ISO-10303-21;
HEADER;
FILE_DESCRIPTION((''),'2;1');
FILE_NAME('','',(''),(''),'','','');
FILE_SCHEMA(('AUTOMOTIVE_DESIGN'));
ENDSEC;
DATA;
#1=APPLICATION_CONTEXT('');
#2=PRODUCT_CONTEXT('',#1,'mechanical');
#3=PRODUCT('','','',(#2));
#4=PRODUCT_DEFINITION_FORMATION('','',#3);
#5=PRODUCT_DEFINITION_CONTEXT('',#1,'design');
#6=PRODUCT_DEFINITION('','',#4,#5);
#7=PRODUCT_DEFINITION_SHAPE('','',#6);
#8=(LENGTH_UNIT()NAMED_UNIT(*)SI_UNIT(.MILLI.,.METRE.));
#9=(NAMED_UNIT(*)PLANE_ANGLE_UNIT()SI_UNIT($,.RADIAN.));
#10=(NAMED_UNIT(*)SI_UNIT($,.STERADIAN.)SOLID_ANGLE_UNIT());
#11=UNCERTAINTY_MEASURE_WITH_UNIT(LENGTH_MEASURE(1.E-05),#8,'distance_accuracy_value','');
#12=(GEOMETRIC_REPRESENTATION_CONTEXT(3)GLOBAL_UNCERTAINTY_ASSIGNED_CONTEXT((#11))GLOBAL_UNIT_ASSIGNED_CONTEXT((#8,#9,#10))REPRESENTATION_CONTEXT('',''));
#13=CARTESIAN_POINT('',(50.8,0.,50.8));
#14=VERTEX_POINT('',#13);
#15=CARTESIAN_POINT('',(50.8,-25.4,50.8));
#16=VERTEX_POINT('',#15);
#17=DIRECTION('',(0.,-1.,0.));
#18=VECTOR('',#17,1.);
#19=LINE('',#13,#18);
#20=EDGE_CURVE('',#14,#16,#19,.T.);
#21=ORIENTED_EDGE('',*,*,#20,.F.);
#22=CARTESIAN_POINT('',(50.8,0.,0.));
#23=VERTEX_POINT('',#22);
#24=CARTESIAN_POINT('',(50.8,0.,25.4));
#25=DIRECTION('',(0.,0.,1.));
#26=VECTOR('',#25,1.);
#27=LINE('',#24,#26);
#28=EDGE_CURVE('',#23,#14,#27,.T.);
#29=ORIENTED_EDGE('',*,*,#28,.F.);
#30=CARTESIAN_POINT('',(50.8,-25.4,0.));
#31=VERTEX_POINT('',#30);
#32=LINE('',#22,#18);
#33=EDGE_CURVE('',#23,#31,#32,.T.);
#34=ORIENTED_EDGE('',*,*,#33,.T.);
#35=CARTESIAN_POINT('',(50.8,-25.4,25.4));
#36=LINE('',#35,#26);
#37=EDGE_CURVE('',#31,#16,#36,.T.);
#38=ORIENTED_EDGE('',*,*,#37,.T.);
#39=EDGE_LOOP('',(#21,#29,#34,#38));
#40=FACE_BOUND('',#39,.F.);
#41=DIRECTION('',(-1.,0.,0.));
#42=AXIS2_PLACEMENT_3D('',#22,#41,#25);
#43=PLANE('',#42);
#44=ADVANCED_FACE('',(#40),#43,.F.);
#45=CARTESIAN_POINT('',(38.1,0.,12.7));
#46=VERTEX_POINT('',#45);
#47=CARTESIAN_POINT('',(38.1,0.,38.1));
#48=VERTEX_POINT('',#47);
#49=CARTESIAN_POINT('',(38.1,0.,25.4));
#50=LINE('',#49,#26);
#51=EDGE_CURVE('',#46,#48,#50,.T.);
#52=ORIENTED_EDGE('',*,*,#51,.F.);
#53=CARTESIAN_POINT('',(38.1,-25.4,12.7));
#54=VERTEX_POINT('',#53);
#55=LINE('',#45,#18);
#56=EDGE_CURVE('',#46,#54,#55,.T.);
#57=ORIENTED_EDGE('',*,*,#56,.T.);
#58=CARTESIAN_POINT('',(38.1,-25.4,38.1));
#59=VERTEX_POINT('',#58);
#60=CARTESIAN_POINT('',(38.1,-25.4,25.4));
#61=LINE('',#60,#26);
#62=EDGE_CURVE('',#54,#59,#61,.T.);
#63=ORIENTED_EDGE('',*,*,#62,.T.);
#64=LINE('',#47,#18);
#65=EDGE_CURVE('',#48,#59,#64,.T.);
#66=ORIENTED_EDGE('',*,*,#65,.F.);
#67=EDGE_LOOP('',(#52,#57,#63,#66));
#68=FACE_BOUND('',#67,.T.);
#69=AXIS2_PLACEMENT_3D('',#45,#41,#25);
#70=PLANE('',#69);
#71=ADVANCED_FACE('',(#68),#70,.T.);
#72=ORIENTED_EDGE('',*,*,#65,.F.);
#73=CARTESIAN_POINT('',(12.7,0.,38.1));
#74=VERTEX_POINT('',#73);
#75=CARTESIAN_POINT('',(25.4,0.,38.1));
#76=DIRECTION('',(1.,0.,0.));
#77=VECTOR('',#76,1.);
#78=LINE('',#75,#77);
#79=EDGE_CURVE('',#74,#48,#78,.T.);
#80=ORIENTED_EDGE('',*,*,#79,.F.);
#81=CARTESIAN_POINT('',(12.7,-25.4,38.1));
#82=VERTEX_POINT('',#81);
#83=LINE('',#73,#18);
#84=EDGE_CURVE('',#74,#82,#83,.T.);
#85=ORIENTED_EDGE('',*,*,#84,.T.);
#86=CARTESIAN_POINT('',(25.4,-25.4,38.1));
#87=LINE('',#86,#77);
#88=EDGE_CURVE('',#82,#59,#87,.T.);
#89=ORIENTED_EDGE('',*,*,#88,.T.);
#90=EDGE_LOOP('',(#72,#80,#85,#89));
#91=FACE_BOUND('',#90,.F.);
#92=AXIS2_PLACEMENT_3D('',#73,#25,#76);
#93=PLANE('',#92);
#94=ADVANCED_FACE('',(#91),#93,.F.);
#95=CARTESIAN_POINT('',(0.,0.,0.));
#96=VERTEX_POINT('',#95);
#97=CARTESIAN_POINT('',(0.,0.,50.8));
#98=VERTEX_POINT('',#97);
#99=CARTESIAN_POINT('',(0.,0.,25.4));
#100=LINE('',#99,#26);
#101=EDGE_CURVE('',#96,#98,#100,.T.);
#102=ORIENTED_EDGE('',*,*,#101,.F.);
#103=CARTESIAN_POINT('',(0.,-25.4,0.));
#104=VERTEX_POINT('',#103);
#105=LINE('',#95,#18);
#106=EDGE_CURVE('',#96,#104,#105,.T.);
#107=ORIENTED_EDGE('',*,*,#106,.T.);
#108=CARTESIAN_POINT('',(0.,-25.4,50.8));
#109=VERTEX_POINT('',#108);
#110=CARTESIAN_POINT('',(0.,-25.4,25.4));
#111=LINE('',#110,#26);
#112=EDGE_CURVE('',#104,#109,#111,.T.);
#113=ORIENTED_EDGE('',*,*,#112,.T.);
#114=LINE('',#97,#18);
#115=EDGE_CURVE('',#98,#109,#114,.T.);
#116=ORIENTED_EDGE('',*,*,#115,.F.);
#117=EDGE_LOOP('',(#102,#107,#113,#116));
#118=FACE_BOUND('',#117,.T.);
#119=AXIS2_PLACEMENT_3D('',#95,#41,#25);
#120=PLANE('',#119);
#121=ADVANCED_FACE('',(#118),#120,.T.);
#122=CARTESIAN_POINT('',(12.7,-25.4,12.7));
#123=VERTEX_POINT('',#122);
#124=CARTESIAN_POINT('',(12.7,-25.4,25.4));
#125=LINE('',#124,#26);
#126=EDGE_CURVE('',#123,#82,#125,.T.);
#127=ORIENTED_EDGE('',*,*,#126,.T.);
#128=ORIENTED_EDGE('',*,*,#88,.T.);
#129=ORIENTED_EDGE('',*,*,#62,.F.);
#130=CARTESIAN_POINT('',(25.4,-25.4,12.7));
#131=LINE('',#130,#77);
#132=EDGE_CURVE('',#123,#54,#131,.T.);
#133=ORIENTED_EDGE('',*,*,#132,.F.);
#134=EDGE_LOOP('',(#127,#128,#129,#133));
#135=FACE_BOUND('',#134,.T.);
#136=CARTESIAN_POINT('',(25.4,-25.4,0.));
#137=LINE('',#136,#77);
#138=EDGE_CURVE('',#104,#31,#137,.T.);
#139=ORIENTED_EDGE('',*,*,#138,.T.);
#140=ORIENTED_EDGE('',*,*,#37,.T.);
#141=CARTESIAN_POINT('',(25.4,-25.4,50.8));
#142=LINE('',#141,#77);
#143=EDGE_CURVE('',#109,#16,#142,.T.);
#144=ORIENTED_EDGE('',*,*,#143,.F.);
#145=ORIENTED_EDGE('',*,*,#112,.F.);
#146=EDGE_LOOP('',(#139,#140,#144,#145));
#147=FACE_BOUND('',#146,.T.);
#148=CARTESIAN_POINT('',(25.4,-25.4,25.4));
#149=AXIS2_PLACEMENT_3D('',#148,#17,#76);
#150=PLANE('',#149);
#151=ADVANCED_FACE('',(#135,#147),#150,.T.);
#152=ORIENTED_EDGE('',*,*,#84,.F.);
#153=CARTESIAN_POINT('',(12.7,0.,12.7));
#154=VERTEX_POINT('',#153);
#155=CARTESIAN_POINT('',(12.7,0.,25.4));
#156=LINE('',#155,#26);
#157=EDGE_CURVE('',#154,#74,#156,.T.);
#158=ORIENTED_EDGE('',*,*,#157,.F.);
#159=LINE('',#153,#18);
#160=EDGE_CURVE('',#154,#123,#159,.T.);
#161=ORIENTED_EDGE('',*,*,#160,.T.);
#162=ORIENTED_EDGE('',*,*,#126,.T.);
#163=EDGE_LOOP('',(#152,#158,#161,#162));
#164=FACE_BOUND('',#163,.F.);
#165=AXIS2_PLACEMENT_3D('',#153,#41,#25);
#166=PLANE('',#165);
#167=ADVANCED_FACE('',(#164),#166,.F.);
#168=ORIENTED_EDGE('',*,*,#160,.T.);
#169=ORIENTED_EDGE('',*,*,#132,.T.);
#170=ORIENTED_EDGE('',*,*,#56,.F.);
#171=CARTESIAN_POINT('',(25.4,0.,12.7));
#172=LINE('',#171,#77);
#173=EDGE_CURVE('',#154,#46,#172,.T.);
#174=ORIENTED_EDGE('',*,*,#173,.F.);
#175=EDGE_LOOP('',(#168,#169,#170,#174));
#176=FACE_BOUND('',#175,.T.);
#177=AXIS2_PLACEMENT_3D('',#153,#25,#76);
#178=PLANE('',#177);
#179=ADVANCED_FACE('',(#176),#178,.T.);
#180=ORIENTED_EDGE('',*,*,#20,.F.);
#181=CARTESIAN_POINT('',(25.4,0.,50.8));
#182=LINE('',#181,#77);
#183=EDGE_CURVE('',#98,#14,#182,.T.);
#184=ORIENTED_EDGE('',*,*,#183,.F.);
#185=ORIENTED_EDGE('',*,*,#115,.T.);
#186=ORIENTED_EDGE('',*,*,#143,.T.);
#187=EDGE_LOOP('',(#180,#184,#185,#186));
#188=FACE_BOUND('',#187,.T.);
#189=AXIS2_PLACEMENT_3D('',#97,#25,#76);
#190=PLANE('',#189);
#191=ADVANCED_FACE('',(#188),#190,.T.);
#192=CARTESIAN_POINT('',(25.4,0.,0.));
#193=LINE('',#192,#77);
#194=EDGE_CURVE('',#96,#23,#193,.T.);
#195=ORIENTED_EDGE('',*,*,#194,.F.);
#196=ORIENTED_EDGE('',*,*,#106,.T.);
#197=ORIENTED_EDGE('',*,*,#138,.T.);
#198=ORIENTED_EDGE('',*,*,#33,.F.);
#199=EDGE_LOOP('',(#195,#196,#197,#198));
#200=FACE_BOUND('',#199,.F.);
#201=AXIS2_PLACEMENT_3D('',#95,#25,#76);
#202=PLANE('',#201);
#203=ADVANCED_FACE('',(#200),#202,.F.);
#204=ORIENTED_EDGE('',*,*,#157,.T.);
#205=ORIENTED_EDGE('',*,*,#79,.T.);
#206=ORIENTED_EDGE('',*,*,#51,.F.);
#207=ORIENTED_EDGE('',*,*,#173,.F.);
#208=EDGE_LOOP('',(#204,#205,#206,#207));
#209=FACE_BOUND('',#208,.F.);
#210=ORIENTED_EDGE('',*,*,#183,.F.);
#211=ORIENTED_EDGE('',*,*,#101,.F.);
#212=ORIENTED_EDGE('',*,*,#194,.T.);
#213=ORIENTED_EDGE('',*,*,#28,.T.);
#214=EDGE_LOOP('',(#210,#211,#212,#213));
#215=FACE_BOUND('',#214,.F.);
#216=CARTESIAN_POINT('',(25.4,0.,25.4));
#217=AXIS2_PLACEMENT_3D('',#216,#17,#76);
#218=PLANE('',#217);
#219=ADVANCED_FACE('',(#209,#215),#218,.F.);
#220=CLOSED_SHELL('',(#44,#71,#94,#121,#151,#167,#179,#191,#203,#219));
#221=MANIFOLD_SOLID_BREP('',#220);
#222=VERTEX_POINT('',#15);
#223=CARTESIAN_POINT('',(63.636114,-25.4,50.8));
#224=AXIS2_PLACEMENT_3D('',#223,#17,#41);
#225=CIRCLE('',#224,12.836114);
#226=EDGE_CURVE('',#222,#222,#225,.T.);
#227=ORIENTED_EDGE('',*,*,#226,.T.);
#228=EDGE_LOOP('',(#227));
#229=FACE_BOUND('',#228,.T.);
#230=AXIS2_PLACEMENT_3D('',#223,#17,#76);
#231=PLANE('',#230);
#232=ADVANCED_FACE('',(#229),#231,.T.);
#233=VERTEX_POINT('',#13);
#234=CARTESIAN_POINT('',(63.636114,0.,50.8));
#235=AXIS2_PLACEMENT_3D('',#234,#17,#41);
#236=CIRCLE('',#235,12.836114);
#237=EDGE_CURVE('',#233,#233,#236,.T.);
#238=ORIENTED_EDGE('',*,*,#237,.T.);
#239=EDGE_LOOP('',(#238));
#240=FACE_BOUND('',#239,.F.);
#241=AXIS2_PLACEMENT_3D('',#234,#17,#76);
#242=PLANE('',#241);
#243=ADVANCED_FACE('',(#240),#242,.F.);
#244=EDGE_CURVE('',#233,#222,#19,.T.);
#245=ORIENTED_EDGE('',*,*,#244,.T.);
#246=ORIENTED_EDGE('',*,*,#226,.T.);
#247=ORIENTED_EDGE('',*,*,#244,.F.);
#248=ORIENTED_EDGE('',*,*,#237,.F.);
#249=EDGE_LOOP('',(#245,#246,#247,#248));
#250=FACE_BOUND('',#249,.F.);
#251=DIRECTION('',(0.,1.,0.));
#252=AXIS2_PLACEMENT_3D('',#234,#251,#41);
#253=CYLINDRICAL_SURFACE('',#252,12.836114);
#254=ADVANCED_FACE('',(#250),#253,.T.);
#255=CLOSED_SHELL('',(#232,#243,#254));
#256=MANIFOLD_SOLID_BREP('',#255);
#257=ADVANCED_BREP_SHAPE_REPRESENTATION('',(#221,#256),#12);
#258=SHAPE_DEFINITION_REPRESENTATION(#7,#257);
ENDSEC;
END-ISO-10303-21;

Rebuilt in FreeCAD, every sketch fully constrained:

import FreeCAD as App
import Part
import Sketcher

V = App.Vector
Q = App.Units.Quantity


def add_polygon(sketch, points):
    """Adds a closed chain of lines whose ends are joined by coincident constraints."""
    first, n = sketch.GeometryCount, len(points)
    for a, b in zip(points, points[1:] + points[:1]):
        sketch.addGeometry(Part.LineSegment(App.Vector(*a, 0), App.Vector(*b, 0)), False)
    for i in range(n):
        sketch.addConstraint(Sketcher.Constraint("Coincident", first + i, 2, first + (i + 1) % n, 1))

doc = App.newDocument("Part")
body = doc.addObject("PartDesign::Body", "Body")
body.AllowCompound = True

sketch1 = doc.addObject("Sketcher::SketchObject", "Sketch")
body.addObject(sketch1)
sketch1.AttachmentSupport = (doc.XZ_Plane, [""])
sketch1.MapMode = "FlatFace"
sketch1.addGeometry(Part.Circle(V(63.636114, 50.8, 0), V(0, 0, 1), 12.836114), False)
add_polygon(sketch1, [(0, 50.8), (0, 0), (50.8, 0), (50.8, 50.8)])
add_polygon(sketch1, [(38.1, 12.7), (12.7, 12.7), (12.7, 38.1), (38.1, 38.1)])
sketch1.addConstraint([
    Sketcher.Constraint("Vertical", 1),
    Sketcher.Constraint("Horizontal", 2),
    Sketcher.Constraint("Vertical", 3),
    Sketcher.Constraint("Horizontal", 4),
    Sketcher.Constraint("Horizontal", 5),
    Sketcher.Constraint("Vertical", 6),
    Sketcher.Constraint("Horizontal", 7),
    Sketcher.Constraint("Vertical", 8),
    Sketcher.Constraint("Coincident", 1, 2, -1, 1),
    Sketcher.Constraint("Horizontal", 0, 3, 3, 2),
    Sketcher.Constraint("Equal", 4, 1),
    Sketcher.Constraint("Equal", 7, 6),
    Sketcher.Constraint("DistanceX", 2, 1, 2, 2, Q("2 in")),
    Sketcher.Constraint("DistanceX", 5, 2, 5, 1, Q("1 in")),
    Sketcher.Constraint("DistanceX", -1, 1, 5, 2, Q("0.5 in")),
    Sketcher.Constraint("DistanceY", -1, 1, 5, 2, Q("0.5 in")),
    Sketcher.Constraint("Diameter", 0, 25.672228),
    Sketcher.Constraint("DistanceX", -1, 1, 0, 3, 63.636114),
])
pad1 = doc.addObject("PartDesign::Pad", "Pad")
body.addObject(pad1)
pad1.Profile = sketch1
pad1.Length = Q("1 in")

doc.recompute()
